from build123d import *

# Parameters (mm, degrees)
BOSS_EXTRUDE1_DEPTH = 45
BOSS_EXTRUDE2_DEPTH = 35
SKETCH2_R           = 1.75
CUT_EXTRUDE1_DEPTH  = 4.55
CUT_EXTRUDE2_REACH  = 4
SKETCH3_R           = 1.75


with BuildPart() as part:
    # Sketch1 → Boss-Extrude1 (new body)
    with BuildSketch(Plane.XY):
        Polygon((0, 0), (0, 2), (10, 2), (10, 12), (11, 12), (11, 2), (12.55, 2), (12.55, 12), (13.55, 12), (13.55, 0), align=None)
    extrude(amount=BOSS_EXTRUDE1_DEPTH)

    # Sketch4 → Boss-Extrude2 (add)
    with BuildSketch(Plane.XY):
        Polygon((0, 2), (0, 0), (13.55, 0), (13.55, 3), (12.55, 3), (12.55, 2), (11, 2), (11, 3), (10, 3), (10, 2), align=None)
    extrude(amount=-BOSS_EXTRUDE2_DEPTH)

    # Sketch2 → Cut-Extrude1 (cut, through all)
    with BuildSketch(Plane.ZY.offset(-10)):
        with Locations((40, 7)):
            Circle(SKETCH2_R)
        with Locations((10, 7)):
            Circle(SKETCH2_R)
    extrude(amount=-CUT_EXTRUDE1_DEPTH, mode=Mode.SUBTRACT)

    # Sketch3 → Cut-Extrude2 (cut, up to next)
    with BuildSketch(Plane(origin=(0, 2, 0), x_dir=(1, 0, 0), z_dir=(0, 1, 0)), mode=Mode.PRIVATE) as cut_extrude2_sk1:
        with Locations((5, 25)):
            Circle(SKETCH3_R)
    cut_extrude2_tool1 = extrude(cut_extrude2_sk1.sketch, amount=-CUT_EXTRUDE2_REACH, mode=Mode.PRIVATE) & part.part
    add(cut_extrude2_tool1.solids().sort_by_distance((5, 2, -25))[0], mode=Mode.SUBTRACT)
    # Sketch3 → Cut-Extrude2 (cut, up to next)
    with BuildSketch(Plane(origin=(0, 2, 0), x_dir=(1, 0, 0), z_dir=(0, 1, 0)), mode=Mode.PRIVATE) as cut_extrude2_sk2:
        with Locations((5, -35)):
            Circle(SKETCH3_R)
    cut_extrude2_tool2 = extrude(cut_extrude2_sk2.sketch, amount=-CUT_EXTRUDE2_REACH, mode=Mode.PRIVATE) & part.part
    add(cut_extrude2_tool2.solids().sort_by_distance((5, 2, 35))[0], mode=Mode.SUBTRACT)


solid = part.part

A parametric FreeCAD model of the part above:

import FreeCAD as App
import Part
import Sketcher

V = App.Vector


def add_polygon(sketch, points):
    """Adds a closed chain of lines whose ends are joined by coincident constraints."""
    first, n = sketch.GeometryCount, len(points)
    for a, b in zip(points, points[1:] + points[:1]):
        sketch.addGeometry(Part.LineSegment(App.Vector(*a, 0), App.Vector(*b, 0)), False)
    for i in range(n):
        sketch.addConstraint(Sketcher.Constraint("Coincident", first + i, 2, first + (i + 1) % n, 1))

doc = App.newDocument("Part")
params = doc.addObject("Spreadsheet::Sheet", "Params")
for row, (alias, value) in enumerate([
    ("sketch1_width", "1 mm"),
    ("sketch1_width2", "10 mm"),
    ("sketch1_height", "2 mm"),
    ("sketch1_width3", "13.55 mm"),
    ("pad1_length", "45 mm"),
    ("sketch2_width", "1 mm"),
    ("sketch2_width2", "10 mm"),
    ("sketch2_height", "2 mm"),
    ("sketch2_width3", "13.55 mm"),
    ("pad2_length", "35 mm"),
    ("sketch3_diameter", "3.5 mm"),
    ("sketch4_diameter", "3.5 mm"),
    ("sketch5_diameter", "3.5 mm"),
], start=1):
    params.set(f"A{row}", alias)
    params.set(f"B{row}", "=" + value)
    params.setAlias(f"B{row}", alias)

body = doc.addObject("PartDesign::Body", "Body")

# Sketch on XY plane
sketch1 = body.newObject("Sketcher::SketchObject", "Sketch")
sketch1.AttachmentSupport = (doc.getObject("XY_Plane"), [""])
sketch1.MapMode = "FlatFace"
add_polygon(sketch1, [(0, 2), (0, 0), (13.55, 0), (13.55, 12), (12.55, 12), (12.55, 2), (11, 2), (11, 12), (10, 12), (10, 2)])  # lines 0-9
sketch1.addConstraint([
    Sketcher.Constraint("Vertical", 0),
    Sketcher.Constraint("Horizontal", 1),
    Sketcher.Constraint("Vertical", 2),
    Sketcher.Constraint("Horizontal", 3),
    Sketcher.Constraint("Vertical", 4),
    Sketcher.Constraint("Horizontal", 5),
    Sketcher.Constraint("Vertical", 6),
    Sketcher.Constraint("Horizontal", 7),
    Sketcher.Constraint("Vertical", 8),
    Sketcher.Constraint("Horizontal", 9),
    Sketcher.Constraint("Coincident", 0, 2, -1, 1),
    Sketcher.Constraint("Horizontal", 3, 2, 6, 2),
    Sketcher.Constraint("Horizontal", 5, 2, 8, 2),
    Sketcher.Constraint("Equal", 3, 7),
    Sketcher.Constraint("Equal", 9, 4),
    Sketcher.Constraint("DistanceX", 3, 2, 3, 1, 1.0),
    Sketcher.Constraint("DistanceX", 9, 2, 9, 1, 10.0),
    Sketcher.Constraint("DistanceY", 0, 2, 0, 1, 2.0),
    Sketcher.Constraint("DistanceX", 1, 1, 1, 2, 13.55),
])
sketch1.setExpression("Constraints[25]", "Params.sketch1_width")
sketch1.setExpression("Constraints[26]", "Params.sketch1_width2")
sketch1.setExpression("Constraints[27]", "Params.sketch1_height")
sketch1.setExpression("Constraints[28]", "Params.sketch1_width3")
pad1 = body.newObject("PartDesign::Pad", "Pad")
pad1.Profile = sketch1
pad1.setExpression("Length", "Params.pad1_length")

# Sketch on XY plane
sketch2 = body.newObject("Sketcher::SketchObject", "Sketch001")
sketch2.AttachmentSupport = (doc.getObject("XY_Plane"), [""])
sketch2.MapMode = "FlatFace"
add_polygon(sketch2, [(0, 2), (0, 0), (13.55, 0), (13.55, 3), (12.55, 3), (12.55, 2), (11, 2), (11, 3), (10, 3), (10, 2)])  # lines 0-9
sketch2.addConstraint([
    Sketcher.Constraint("Vertical", 0),
    Sketcher.Constraint("Horizontal", 1),
    Sketcher.Constraint("Vertical", 2),
    Sketcher.Constraint("Horizontal", 3),
    Sketcher.Constraint("Vertical", 4),
    Sketcher.Constraint("Horizontal", 5),
    Sketcher.Constraint("Vertical", 6),
    Sketcher.Constraint("Horizontal", 7),
    Sketcher.Constraint("Vertical", 8),
    Sketcher.Constraint("Horizontal", 9),
    Sketcher.Constraint("Coincident", 0, 2, -1, 1),
    Sketcher.Constraint("Horizontal", 3, 2, 6, 2),
    Sketcher.Constraint("Horizontal", 5, 2, 8, 2),
    Sketcher.Constraint("Equal", 3, 7),
    Sketcher.Constraint("Equal", 7, 4),
    Sketcher.Constraint("DistanceX", 3, 2, 3, 1, 1.0),
    Sketcher.Constraint("DistanceX", 9, 2, 9, 1, 10.0),
    Sketcher.Constraint("DistanceY", 0, 2, 0, 1, 2.0),
    Sketcher.Constraint("DistanceX", 1, 1, 1, 2, 13.55),
])
sketch2.setExpression("Constraints[25]", "Params.sketch2_width")
sketch2.setExpression("Constraints[26]", "Params.sketch2_width2")
sketch2.setExpression("Constraints[27]", "Params.sketch2_height")
sketch2.setExpression("Constraints[28]", "Params.sketch2_width3")
pad2 = body.newObject("PartDesign::Pad", "Pad001")
pad2.Profile = sketch2
pad2.setExpression("Length", "Params.pad2_length")
pad2.Reversed = True

# Sketch on YZ plane
sketch3 = body.newObject("Sketcher::SketchObject", "Sketch002")
sketch3.AttachmentSupport = (doc.getObject("YZ_Plane"), [""])
sketch3.MapMode = "FlatFace"
sketch3.AttachmentOffset = App.Placement(V(0, 0, 10), App.Rotation())
sketch3.addGeometry([
    Part.Circle(V(7, 40, 0), V(0, 0, 1), 1.75),
    Part.Circle(V(7, 10, 0), V(0, 0, 1), 1.75),
], False)
sketch3.addConstraint([
    Sketcher.Constraint("Equal", 0, 1),
    Sketcher.Constraint("Vertical", 0, 3, 1, 3),
    Sketcher.Constraint("Diameter", 0, 3.5),
    Sketcher.Constraint("DistanceX", -1, 1, 0, 3, 7.0),
    Sketcher.Constraint("DistanceY", -1, 1, 0, 3, 40.0),
    Sketcher.Constraint("DistanceY", -1, 1, 1, 3, 10.0),
])
sketch3.setExpression("Constraints[2]", "Params.sketch3_diameter")
pocket1 = body.newObject("PartDesign::Pocket", "Pocket")
pocket1.Profile = sketch3
pocket1.Type = "ThroughAll"
pocket1.Reversed = True

# Sketch on XZ plane
sketch4 = body.newObject("Sketcher::SketchObject", "Sketch003")
sketch4.AttachmentSupport = (doc.getObject("XZ_Plane"), [""])
sketch4.MapMode = "FlatFace"
sketch4.AttachmentOffset = App.Placement(V(0, 0, -2), App.Rotation())
sketch4.addGeometry(Part.Circle(V(5, -25, 0), V(0, 0, 1), 1.75), False)
sketch4.addConstraint([
    Sketcher.Constraint("Diameter", 0, 3.5),
    Sketcher.Constraint("DistanceX", -1, 1, 0, 3, 5.0),
    Sketcher.Constraint("DistanceY", 0, 3, -1, 1, 25.0),
])
sketch4.setExpression("Constraints[0]", "Params.sketch4_diameter")
pocket2 = body.newObject("PartDesign::Pocket", "Pocket001")
pocket2.Profile = sketch4
pocket2.Type = "UpToFirst"
pocket2.Reversed = True

# Sketch on XZ plane
sketch5 = body.newObject("Sketcher::SketchObject", "Sketch004")
sketch5.AttachmentSupport = (doc.getObject("XZ_Plane"), [""])
sketch5.MapMode = "FlatFace"
sketch5.AttachmentOffset = App.Placement(V(0, 0, -2), App.Rotation())
sketch5.addGeometry(Part.Circle(V(5, 35, 0), V(0, 0, 1), 1.75), False)
sketch5.addConstraint([
    Sketcher.Constraint("Diameter", 0, 3.5),
    Sketcher.Constraint("DistanceX", -1, 1, 0, 3, 5.0),
    Sketcher.Constraint("DistanceY", -1, 1, 0, 3, 35.0),
])
sketch5.setExpression("Constraints[0]", "Params.sketch5_diameter")
pocket3 = body.newObject("PartDesign::Pocket", "Pocket002")
pocket3.Profile = sketch5
pocket3.Type = "UpToFirst"
pocket3.Reversed = True

doc.recompute()
